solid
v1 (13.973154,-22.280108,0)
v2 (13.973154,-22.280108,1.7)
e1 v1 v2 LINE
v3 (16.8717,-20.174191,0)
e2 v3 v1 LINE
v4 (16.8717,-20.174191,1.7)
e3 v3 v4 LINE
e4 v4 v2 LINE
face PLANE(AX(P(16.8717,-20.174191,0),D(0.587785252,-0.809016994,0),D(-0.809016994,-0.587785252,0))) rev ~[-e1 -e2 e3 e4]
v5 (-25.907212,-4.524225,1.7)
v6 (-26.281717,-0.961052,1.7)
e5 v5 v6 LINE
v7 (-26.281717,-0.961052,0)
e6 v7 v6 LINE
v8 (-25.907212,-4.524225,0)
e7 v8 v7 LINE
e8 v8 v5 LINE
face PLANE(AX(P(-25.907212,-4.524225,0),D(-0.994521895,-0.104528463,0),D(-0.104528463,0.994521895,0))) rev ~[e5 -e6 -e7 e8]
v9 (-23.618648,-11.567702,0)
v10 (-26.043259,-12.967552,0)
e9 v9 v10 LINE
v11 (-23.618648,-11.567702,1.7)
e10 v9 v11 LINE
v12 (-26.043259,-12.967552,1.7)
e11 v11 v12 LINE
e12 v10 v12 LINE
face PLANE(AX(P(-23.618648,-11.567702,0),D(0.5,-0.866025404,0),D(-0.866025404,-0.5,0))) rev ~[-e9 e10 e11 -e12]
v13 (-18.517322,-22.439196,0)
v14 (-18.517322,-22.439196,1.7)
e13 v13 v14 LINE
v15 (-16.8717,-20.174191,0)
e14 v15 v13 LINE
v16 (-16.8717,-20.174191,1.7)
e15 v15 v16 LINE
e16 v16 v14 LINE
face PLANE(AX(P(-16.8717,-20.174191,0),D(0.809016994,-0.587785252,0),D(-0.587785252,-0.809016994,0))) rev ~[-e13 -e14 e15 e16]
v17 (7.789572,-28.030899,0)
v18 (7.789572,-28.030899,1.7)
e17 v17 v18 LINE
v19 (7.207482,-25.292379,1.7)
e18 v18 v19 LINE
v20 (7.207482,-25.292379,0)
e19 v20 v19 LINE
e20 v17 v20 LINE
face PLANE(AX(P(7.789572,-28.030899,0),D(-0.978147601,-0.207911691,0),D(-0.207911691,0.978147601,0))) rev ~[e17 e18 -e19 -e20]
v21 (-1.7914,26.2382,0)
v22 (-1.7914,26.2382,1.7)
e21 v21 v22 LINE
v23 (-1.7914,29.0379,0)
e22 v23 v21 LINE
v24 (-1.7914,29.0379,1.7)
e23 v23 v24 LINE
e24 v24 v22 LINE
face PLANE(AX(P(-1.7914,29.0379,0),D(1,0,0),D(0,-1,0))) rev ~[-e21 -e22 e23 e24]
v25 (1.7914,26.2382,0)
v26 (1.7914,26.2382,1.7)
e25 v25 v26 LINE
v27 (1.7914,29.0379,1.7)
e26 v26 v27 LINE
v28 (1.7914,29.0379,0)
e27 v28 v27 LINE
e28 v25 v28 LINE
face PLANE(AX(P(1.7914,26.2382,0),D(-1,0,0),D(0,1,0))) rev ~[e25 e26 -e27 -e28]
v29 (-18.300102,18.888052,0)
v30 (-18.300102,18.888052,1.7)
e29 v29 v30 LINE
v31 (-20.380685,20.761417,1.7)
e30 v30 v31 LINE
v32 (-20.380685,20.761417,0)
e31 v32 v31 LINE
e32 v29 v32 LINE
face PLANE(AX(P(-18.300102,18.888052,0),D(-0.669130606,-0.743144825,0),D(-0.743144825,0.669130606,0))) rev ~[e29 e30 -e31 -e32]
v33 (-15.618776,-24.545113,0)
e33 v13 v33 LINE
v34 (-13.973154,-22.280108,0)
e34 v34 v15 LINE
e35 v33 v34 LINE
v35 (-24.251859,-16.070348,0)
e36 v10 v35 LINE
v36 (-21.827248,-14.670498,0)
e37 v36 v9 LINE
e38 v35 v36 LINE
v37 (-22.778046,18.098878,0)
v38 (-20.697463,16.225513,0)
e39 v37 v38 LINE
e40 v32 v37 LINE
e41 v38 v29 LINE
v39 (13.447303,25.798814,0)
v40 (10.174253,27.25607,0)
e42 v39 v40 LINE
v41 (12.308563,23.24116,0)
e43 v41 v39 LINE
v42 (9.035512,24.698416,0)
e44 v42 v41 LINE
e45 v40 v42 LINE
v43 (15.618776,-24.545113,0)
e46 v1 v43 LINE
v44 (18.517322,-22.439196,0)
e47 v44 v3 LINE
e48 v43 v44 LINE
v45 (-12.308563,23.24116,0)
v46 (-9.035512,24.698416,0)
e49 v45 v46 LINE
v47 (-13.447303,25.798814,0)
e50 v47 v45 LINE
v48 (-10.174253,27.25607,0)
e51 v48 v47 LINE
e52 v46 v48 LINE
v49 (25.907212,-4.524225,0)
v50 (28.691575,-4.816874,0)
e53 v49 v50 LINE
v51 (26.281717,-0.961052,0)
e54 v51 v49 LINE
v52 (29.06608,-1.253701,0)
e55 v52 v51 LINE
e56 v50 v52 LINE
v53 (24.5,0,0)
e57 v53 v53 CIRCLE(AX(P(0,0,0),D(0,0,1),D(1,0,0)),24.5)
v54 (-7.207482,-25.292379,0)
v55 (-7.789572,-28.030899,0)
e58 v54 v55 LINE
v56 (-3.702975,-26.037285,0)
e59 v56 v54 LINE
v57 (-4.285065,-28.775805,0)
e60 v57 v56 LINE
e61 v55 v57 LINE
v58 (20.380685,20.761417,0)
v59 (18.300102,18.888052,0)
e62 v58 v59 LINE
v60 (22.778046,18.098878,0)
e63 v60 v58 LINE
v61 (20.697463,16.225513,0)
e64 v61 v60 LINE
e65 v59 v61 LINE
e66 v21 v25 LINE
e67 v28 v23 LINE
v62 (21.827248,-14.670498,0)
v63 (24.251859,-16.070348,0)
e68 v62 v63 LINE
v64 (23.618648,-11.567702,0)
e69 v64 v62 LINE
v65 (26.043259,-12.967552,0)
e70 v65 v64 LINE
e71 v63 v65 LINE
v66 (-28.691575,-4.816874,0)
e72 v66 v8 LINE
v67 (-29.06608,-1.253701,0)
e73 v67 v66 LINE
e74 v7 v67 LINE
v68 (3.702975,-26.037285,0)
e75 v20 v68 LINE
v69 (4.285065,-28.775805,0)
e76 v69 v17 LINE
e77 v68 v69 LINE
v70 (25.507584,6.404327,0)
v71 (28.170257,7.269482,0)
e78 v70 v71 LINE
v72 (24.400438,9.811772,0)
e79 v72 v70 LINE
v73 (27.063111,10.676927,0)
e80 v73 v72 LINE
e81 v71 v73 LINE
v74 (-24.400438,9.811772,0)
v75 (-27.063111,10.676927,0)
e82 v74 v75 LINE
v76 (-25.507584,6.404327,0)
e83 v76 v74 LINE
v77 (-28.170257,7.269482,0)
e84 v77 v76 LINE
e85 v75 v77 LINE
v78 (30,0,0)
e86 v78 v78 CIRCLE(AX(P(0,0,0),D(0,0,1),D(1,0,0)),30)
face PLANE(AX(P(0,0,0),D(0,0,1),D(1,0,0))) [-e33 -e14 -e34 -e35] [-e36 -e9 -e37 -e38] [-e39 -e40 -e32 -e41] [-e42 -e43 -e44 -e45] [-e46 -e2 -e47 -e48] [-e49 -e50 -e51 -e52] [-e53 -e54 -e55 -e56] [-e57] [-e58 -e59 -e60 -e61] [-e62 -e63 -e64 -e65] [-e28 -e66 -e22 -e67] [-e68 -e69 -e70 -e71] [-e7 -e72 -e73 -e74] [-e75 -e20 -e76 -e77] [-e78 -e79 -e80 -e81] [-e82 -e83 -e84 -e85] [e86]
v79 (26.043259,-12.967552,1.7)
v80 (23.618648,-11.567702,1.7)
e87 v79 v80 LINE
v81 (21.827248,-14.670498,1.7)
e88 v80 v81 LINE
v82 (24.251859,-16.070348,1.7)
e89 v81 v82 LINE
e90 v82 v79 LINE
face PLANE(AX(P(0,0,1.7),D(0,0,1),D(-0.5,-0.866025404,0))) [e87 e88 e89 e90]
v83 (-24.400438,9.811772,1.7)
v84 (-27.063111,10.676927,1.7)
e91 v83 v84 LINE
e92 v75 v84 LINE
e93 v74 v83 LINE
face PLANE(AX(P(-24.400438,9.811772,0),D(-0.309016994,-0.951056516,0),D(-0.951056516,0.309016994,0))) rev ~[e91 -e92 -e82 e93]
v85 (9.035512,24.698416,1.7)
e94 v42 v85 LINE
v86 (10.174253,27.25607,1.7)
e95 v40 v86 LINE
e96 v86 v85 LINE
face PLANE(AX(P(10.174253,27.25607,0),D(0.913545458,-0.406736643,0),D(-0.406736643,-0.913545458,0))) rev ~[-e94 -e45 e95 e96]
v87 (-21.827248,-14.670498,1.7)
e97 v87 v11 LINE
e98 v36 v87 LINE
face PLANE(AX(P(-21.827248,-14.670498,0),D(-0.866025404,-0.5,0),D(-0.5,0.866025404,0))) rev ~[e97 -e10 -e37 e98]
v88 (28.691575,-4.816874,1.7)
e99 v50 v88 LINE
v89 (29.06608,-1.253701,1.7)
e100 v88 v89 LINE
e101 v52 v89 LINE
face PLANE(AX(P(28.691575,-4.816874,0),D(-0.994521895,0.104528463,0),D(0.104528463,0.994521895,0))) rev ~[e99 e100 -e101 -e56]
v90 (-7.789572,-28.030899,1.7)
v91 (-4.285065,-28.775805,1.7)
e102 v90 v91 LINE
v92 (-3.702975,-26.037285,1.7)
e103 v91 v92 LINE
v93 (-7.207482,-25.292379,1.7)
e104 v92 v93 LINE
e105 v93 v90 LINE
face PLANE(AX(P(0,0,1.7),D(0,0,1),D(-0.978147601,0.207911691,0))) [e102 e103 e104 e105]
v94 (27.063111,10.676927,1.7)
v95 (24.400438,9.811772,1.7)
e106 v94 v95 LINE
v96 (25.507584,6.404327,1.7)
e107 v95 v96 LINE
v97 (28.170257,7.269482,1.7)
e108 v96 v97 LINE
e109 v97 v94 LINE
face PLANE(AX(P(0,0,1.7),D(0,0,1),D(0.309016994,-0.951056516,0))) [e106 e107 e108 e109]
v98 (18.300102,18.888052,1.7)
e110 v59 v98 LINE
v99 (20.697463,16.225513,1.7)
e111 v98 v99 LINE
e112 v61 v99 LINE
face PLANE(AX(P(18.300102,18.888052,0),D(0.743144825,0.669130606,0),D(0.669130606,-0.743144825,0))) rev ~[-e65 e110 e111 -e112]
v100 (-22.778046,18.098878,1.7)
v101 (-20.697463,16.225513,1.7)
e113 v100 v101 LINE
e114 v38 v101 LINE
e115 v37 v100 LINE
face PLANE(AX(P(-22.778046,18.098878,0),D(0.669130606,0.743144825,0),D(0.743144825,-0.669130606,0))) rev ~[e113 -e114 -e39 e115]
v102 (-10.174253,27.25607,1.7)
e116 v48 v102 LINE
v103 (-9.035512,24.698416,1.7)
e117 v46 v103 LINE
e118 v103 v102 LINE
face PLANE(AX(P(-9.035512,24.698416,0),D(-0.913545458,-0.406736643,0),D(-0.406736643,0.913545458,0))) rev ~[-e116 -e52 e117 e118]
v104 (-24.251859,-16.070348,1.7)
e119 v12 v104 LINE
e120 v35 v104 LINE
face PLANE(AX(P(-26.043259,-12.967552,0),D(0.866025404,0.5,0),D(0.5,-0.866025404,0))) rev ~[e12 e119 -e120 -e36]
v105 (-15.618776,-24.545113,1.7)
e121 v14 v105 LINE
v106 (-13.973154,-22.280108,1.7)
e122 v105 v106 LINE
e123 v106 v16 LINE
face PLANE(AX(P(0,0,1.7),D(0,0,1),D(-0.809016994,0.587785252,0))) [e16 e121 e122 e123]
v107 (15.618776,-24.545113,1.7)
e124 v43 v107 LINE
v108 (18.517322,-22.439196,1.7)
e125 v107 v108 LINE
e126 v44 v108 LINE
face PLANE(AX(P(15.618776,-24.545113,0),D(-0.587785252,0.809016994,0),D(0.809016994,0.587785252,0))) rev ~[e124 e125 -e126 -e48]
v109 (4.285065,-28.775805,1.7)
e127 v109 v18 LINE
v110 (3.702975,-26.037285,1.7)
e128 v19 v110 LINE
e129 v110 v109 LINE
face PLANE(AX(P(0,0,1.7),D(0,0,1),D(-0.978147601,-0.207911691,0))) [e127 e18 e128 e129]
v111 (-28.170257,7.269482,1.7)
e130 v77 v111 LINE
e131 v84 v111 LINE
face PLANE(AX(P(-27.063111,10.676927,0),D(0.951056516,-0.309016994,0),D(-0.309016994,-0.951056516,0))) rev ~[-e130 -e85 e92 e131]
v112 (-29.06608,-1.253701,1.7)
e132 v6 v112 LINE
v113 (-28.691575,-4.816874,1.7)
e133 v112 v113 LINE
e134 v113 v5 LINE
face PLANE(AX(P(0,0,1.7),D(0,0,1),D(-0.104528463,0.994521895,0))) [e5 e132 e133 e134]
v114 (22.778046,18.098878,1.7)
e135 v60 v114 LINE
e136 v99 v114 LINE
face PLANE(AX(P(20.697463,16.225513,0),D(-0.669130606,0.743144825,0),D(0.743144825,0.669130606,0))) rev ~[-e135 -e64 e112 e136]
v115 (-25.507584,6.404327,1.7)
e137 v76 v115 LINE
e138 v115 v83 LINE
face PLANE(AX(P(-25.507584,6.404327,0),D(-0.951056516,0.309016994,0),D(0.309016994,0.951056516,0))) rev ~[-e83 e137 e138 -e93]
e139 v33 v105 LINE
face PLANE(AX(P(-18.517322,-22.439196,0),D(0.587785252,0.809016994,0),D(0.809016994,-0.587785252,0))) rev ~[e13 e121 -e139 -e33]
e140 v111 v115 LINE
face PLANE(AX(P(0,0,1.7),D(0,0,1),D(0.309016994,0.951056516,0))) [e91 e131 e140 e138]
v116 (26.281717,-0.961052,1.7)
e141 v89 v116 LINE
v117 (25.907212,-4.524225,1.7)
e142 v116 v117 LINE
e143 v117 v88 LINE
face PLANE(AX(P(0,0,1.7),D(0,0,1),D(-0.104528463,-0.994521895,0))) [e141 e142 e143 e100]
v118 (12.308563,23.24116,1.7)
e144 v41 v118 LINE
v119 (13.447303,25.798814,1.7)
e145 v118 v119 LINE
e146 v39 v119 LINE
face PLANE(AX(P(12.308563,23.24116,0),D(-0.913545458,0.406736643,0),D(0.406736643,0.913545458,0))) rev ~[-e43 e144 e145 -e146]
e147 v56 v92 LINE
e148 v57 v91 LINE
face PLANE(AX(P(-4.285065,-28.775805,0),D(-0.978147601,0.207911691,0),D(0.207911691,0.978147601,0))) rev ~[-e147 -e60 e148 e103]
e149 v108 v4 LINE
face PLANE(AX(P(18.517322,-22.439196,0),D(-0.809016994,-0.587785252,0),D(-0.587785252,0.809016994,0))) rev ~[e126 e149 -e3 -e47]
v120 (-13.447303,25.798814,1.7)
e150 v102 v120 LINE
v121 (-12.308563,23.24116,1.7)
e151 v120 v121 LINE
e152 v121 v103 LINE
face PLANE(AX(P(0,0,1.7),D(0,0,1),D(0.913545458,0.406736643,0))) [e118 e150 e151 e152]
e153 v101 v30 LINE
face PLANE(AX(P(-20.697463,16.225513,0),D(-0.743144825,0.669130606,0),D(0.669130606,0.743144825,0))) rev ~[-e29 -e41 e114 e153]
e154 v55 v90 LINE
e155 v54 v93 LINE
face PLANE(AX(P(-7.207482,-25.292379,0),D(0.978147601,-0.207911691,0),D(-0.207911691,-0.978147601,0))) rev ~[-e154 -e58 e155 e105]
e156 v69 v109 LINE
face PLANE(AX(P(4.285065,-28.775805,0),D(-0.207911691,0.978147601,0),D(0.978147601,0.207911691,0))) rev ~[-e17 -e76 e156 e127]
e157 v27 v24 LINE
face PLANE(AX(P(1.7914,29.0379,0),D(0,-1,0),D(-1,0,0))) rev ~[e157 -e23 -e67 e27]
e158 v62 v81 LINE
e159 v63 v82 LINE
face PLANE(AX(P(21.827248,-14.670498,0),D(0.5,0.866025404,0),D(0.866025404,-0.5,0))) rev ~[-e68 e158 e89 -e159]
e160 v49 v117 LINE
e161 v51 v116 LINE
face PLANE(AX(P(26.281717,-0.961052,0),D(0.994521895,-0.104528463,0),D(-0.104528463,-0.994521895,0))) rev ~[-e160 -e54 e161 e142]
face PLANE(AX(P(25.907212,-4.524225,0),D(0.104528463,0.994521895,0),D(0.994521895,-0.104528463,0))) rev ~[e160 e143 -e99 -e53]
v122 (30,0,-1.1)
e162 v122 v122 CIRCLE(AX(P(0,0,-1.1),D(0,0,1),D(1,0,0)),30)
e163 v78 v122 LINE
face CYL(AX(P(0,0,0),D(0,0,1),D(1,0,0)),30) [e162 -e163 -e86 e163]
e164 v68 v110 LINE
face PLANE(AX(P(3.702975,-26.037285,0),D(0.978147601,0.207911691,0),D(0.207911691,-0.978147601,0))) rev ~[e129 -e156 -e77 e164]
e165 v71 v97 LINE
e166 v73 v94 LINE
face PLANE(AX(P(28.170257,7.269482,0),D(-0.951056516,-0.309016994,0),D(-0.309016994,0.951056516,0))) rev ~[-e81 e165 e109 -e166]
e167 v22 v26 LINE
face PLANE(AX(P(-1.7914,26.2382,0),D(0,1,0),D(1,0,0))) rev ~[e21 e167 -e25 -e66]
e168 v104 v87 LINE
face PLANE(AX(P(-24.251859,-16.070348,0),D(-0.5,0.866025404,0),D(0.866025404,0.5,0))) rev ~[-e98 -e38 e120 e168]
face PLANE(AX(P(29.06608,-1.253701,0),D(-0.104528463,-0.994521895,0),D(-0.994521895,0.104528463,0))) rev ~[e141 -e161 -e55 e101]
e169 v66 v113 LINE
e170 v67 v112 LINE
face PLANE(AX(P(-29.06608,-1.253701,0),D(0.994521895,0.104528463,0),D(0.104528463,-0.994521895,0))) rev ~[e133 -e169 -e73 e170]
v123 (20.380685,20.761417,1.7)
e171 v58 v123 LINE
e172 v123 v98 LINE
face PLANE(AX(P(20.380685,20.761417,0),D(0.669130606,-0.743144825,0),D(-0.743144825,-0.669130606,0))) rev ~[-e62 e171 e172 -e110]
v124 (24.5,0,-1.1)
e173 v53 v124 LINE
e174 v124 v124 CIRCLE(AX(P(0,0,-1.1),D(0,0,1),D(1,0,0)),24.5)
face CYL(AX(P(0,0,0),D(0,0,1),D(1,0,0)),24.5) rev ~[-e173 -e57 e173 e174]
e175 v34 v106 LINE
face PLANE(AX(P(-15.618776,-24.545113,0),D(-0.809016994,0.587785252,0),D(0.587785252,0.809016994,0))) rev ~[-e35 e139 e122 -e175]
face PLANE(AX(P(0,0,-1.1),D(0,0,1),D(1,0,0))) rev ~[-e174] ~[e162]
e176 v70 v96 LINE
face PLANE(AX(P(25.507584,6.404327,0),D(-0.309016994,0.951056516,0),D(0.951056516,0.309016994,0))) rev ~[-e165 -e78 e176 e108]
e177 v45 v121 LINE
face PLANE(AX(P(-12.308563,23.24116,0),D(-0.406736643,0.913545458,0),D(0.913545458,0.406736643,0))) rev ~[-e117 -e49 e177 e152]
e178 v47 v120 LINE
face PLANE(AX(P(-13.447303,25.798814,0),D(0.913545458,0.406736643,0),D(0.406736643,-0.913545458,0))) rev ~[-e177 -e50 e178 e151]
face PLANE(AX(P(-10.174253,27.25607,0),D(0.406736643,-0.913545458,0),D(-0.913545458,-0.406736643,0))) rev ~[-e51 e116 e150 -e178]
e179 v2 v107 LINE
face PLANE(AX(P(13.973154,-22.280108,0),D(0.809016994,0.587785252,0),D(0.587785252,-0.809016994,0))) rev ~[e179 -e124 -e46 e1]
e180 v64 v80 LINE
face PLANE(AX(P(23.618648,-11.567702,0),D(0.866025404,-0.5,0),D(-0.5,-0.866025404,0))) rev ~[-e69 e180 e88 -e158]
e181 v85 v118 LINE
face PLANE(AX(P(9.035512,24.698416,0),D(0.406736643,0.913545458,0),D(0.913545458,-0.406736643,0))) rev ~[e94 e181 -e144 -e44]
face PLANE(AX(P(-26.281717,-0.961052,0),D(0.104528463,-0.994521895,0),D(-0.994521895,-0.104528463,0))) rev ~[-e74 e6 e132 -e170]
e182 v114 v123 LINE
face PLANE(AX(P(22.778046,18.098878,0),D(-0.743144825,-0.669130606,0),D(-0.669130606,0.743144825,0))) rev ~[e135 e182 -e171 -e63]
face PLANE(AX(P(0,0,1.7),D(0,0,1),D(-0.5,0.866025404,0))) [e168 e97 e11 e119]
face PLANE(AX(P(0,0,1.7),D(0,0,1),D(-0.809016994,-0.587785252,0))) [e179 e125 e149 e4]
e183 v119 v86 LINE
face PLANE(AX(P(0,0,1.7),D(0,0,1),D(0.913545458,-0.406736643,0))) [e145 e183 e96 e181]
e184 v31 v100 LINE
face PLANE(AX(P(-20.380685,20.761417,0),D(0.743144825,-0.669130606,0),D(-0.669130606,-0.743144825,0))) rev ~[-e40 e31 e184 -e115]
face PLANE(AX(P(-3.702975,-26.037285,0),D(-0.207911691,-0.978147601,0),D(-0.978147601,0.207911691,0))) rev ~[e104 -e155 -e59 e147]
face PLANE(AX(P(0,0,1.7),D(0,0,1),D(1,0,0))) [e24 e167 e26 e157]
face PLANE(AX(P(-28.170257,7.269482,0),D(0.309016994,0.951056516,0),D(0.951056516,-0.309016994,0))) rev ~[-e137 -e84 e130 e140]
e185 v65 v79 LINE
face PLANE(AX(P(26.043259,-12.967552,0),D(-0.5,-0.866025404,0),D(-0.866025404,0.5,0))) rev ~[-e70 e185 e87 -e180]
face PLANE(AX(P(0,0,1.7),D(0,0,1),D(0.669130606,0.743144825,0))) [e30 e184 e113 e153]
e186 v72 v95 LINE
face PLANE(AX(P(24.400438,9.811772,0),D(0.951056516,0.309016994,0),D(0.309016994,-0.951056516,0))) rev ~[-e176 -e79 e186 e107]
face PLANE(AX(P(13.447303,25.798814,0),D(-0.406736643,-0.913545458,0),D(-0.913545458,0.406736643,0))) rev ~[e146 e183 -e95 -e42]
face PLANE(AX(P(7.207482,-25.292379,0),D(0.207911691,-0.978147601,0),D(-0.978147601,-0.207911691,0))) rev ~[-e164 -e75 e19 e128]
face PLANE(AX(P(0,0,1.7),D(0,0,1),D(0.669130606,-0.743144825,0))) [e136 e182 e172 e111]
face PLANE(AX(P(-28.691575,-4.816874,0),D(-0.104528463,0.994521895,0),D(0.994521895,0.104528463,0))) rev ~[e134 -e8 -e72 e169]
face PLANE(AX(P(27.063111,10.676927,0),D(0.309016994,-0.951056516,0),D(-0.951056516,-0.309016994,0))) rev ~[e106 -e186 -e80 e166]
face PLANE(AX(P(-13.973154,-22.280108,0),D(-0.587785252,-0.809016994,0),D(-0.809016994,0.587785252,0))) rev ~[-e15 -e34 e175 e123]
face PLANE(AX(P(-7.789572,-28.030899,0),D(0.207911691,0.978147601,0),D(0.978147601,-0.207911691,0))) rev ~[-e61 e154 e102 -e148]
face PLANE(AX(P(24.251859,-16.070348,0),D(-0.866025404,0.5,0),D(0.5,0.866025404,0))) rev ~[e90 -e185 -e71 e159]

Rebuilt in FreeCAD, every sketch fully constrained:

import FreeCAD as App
import Part
import Sketcher

V = App.Vector

doc = App.newDocument("Part")
body = doc.addObject("PartDesign::Body", "Body")

sketch1 = doc.addObject("Sketcher::SketchObject", "Sketch")
body.addObject(sketch1)
sketch1.AttachmentSupport = (doc.XY_Plane, [""])
sketch1.MapMode = "FlatFace"
sketch1.addGeometry([
    Part.Circle(V(0, 0, 0), V(0, 0, 1), 30),
    Part.Circle(V(0, 0, 0), V(0, 0, 1), 24),
], False)
sketch1.addConstraint([
    Sketcher.Constraint("Coincident", 0, 3, -1, 1),
    Sketcher.Constraint("Coincident", 1, 3, -1, 1),
    Sketcher.Constraint("Diameter", 0, 60.0),
    Sketcher.Constraint("Diameter", 1, 49.0),
])
pad1 = doc.addObject("PartDesign::Pad", "Pad")
body.addObject(pad1)
pad1.Profile = sketch1
pad1.Length = 1.1
pad1.Reversed = True

sketch2 = doc.addObject("Sketcher::SketchObject", "Sketch001")
body.addObject(sketch2)
sketch2.AttachmentSupport = (doc.XY_Plane, [""])
sketch2.MapMode = "FlatFace"
sketch2.addGeometry([
    Part.LineSegment(V(-1.8, 29, 0), V(-1.8, 26.2, 0)),
    Part.LineSegment(V(-1.8, 26.2, 0), V(1.8, 26.2, 0)),
    Part.LineSegment(V(1.8, 26.2, 0), V(1.8, 29, 0)),
    Part.LineSegment(V(1.8, 29, 0), V(-1.8, 29, 0)),
], False)
sketch2.addConstraint([
    Sketcher.Constraint("Coincident", 0, 2, 1, 1),
    Sketcher.Constraint("Coincident", 1, 2, 2, 1),
    Sketcher.Constraint("Coincident", 2, 2, 3, 1),
    Sketcher.Constraint("Coincident", 3, 2, 0, 1),
    Sketcher.Constraint("Vertical", 0),
    Sketcher.Constraint("Horizontal", 1),
    Sketcher.Constraint("Vertical", 2),
    Sketcher.Constraint("Horizontal", 3),
    Sketcher.Constraint("DistanceX", 1, 1, 1, 2, 3.5828),
    Sketcher.Constraint("DistanceY", 0, 2, 0, 1, 2.7997),
    Sketcher.Constraint("DistanceY", -1, 1, 2, 2, 29.038),
    Sketcher.Constraint("DistanceX", 0, 2, -1, 1, 1.7914),
])
pad2 = doc.addObject("PartDesign::Pad", "Pad001")
body.addObject(pad2)
pad2.Profile = sketch2
pad2.Length = 1.7
doc.recompute()

polarpattern = doc.addObject("PartDesign::PolarPattern", "PolarPattern")
body.addObject(polarpattern)
polarpattern.Originals = [pad2]
polarpattern.Axis = (doc.Z_Axis, [""])
polarpattern.Angle = 360
polarpattern.Occurrences = 15
body.Tip = polarpattern

doc.recompute()
